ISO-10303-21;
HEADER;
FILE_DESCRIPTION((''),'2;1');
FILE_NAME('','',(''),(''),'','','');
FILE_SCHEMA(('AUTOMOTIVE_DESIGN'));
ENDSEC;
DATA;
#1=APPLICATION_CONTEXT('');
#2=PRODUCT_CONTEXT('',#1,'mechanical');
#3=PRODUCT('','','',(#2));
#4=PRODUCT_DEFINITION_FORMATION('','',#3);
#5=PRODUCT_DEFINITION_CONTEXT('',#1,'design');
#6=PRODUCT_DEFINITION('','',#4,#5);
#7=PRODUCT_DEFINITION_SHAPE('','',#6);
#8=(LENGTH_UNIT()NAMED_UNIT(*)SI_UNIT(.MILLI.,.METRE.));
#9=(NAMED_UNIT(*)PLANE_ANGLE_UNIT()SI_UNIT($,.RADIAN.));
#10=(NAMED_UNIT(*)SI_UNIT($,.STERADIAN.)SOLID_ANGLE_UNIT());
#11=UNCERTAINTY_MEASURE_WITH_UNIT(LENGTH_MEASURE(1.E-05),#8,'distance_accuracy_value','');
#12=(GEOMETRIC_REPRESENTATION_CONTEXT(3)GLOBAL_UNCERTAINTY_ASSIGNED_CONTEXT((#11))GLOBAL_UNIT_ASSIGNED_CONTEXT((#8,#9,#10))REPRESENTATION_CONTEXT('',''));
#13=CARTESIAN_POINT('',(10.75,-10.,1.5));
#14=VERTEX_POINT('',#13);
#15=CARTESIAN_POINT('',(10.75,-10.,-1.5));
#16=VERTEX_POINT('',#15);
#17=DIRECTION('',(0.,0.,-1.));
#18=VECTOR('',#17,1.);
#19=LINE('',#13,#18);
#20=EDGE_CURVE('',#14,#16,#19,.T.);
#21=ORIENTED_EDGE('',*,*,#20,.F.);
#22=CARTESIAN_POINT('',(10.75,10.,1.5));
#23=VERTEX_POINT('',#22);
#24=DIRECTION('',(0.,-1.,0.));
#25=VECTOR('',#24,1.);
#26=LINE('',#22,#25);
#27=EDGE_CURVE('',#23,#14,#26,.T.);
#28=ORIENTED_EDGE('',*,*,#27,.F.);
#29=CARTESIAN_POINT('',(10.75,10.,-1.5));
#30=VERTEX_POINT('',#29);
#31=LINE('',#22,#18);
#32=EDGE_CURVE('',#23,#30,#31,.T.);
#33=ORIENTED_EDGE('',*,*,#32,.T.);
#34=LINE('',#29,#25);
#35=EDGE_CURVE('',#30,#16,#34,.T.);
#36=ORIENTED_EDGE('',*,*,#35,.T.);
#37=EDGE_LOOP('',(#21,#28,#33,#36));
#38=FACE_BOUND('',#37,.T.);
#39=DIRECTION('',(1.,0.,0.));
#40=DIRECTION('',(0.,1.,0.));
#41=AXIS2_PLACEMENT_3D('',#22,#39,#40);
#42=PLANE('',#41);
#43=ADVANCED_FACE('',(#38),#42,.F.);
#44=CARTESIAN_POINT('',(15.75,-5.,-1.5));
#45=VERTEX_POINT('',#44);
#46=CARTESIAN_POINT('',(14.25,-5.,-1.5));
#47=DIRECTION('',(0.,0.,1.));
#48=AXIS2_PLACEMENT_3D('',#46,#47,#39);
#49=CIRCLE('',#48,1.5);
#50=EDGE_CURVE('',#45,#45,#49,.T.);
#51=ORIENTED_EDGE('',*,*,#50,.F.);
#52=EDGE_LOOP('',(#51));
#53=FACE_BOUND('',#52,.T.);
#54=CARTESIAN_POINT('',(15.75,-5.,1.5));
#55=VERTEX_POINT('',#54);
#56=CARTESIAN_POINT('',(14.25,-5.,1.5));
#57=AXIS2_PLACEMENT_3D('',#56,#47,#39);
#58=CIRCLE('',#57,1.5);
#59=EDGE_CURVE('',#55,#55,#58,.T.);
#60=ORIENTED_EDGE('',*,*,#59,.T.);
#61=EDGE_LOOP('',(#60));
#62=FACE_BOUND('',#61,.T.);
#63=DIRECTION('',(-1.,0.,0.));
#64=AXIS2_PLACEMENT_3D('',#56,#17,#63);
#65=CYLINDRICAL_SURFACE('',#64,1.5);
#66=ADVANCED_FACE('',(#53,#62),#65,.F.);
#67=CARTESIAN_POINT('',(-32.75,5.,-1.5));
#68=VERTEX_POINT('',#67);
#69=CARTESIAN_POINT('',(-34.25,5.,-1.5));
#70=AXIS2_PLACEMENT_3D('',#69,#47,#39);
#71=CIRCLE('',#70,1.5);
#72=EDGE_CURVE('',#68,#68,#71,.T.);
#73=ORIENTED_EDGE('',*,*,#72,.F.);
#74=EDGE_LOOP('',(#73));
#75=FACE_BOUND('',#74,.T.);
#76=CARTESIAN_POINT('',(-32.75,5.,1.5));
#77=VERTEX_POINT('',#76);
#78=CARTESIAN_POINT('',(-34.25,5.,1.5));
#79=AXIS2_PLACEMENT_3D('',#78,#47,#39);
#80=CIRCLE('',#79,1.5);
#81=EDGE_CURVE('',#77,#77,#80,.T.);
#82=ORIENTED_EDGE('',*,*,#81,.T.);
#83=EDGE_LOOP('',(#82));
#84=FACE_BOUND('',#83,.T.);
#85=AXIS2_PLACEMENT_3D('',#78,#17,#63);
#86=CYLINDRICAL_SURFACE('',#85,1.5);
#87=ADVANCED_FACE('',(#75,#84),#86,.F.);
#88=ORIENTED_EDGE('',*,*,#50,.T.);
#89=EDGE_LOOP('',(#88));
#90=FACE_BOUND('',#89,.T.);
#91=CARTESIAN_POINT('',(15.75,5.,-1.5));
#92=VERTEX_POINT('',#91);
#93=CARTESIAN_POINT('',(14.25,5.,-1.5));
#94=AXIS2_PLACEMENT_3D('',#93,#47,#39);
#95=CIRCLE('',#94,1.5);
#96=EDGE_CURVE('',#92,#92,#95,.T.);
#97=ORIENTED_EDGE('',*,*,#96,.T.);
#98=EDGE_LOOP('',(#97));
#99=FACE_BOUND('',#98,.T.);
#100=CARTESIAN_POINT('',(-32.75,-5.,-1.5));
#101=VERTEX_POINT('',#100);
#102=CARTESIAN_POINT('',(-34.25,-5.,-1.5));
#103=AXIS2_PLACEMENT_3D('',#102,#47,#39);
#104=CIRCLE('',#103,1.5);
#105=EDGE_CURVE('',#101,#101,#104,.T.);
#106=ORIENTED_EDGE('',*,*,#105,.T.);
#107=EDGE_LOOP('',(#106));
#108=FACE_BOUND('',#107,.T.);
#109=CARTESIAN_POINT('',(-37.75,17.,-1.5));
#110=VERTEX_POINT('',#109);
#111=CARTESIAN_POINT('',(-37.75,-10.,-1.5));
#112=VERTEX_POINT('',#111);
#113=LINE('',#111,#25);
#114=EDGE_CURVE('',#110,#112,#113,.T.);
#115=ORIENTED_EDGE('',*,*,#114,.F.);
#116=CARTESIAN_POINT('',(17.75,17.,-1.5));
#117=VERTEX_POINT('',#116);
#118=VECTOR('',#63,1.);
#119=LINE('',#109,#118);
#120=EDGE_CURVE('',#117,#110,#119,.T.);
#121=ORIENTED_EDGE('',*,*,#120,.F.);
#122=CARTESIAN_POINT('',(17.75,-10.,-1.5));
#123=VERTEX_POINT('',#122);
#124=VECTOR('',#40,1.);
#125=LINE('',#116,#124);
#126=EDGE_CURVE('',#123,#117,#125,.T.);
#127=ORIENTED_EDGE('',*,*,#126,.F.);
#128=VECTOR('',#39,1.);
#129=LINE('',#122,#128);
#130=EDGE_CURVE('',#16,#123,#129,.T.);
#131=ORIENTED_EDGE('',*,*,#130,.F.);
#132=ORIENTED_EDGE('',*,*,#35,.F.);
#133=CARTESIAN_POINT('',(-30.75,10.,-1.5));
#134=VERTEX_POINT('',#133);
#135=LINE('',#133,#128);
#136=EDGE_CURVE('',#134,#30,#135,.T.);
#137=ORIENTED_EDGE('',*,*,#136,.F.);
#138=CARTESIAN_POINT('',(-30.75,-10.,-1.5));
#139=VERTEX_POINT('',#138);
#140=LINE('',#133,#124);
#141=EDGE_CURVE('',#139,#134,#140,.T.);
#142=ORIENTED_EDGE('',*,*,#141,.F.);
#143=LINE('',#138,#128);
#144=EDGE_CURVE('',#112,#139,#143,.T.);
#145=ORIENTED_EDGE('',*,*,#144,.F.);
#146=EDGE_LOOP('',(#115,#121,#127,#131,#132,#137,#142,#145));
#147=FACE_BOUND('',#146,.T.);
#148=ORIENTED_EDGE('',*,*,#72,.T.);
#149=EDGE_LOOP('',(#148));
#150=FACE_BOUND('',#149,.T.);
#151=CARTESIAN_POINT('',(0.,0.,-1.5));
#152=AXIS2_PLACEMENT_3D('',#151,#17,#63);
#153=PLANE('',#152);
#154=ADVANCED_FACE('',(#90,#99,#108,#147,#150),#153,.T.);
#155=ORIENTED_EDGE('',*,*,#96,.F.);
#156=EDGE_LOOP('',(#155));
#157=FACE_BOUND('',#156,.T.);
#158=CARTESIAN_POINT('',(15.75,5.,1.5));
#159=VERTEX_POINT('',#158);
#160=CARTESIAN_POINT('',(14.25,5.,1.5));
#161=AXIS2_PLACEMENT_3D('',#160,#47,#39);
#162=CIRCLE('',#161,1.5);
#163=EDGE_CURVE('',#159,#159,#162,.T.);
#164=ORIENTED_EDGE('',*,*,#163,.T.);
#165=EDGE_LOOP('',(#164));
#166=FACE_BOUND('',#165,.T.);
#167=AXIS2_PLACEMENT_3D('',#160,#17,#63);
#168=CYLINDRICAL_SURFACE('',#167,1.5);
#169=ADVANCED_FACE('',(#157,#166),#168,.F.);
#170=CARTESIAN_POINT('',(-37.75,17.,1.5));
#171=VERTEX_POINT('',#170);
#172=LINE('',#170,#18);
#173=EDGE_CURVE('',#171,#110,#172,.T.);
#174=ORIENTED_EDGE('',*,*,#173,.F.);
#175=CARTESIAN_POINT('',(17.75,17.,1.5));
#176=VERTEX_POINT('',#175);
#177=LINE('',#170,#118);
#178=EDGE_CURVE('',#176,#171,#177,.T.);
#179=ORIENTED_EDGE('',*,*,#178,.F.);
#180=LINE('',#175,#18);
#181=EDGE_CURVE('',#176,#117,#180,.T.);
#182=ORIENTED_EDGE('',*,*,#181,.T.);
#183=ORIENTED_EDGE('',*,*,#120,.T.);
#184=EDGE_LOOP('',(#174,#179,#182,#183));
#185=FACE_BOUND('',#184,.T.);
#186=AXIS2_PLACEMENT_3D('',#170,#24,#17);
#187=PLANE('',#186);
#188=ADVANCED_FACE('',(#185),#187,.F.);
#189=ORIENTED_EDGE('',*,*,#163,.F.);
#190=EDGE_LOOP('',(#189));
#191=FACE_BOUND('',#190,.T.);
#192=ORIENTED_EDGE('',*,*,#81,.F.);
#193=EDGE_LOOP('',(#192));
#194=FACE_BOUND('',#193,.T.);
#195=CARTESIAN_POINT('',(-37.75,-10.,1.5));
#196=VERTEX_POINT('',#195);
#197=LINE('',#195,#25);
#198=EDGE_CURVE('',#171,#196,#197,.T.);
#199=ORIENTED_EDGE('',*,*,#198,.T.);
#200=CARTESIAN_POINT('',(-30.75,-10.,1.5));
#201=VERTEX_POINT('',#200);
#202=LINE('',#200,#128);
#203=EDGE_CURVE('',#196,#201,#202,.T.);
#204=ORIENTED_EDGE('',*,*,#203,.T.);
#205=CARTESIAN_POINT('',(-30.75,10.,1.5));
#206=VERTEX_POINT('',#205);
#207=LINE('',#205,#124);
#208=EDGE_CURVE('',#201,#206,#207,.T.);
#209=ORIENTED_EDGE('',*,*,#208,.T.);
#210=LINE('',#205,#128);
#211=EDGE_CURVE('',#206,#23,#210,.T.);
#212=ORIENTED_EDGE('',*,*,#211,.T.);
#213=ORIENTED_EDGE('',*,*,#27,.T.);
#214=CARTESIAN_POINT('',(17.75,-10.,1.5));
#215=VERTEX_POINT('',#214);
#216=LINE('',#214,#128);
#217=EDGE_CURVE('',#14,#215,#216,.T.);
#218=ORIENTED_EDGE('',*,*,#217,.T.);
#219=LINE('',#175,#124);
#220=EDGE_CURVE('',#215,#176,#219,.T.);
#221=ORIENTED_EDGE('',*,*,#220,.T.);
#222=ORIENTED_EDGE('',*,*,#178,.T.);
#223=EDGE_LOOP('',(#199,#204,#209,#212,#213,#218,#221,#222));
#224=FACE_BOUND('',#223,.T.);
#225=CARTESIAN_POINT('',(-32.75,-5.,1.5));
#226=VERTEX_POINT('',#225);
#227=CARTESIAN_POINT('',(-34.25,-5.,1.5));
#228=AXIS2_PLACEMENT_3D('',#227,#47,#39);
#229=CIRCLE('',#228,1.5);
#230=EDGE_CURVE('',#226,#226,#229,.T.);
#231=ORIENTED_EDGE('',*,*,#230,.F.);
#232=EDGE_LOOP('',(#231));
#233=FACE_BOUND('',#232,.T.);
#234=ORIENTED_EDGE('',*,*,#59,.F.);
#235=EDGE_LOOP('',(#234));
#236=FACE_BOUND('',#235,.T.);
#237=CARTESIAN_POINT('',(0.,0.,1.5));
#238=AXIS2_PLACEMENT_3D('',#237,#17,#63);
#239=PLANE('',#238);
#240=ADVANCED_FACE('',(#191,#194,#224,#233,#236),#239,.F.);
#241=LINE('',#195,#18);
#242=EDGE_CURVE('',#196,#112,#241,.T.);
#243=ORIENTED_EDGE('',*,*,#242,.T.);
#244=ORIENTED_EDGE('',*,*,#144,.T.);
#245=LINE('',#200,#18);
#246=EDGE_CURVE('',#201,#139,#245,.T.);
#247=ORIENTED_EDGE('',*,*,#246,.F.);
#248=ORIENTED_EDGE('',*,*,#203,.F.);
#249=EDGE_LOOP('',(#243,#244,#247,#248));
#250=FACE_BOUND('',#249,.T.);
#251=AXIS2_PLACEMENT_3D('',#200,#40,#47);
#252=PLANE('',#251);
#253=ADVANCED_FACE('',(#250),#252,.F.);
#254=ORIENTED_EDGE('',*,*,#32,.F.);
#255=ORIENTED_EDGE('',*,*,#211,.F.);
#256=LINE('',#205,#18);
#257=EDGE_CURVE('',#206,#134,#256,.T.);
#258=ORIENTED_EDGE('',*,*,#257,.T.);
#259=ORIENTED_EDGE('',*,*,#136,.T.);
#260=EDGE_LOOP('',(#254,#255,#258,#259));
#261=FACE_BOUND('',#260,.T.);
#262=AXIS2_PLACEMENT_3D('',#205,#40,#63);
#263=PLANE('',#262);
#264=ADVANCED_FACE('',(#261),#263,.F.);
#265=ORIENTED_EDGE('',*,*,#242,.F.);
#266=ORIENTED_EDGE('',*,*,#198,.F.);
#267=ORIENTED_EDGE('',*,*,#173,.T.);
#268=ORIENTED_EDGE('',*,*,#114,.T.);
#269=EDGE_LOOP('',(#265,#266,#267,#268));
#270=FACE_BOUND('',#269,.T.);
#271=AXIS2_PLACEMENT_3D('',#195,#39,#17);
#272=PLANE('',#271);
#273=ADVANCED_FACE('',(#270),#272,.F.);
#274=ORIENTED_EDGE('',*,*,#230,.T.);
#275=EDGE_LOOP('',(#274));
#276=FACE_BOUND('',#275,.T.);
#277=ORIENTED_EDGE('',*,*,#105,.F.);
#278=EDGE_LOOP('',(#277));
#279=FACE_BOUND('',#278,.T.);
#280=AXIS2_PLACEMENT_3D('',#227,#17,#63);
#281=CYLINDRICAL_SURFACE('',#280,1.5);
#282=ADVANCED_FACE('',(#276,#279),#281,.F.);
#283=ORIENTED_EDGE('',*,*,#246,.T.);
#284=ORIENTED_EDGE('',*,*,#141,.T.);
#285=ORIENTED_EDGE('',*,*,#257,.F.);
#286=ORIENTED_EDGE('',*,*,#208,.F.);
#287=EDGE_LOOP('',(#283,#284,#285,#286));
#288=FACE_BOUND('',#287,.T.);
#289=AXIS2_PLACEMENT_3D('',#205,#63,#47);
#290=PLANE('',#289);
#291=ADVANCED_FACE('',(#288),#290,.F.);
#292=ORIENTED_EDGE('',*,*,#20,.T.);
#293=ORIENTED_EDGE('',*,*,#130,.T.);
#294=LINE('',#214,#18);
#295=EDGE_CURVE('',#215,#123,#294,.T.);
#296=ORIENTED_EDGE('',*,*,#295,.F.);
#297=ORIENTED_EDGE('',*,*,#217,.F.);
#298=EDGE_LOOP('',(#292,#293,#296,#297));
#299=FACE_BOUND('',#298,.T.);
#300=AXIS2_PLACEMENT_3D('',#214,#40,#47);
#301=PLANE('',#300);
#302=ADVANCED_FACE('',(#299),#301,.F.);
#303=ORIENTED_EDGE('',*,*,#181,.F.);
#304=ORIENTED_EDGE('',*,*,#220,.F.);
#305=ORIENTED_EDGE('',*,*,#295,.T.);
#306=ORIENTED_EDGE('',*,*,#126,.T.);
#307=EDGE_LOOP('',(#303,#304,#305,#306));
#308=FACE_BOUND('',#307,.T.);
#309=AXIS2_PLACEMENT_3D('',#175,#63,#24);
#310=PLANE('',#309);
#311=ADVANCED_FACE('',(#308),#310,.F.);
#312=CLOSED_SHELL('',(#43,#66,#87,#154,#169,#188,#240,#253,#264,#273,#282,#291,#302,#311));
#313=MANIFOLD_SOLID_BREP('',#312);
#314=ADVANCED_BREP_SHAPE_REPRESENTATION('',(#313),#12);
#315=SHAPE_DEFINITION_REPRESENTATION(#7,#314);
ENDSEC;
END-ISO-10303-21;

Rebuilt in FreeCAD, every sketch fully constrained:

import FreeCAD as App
import Part
import Sketcher


def add_polygon(sketch, points):
    """Adds a closed chain of lines whose ends are joined by coincident constraints."""
    first, n = sketch.GeometryCount, len(points)
    for a, b in zip(points, points[1:] + points[:1]):
        sketch.addGeometry(Part.LineSegment(App.Vector(*a, 0), App.Vector(*b, 0)), False)
    for i in range(n):
        sketch.addConstraint(Sketcher.Constraint("Coincident", first + i, 2, first + (i + 1) % n, 1))

doc = App.newDocument("Part")
params = doc.addObject("Spreadsheet::Sheet", "Params")
for row, (alias, value) in enumerate([
    ("sketch1_diameter", "3 mm"),
    ("sketch1_width", "7 mm"),
    ("sketch1_height", "20 mm"),
    ("sketch1_height2", "27 mm"),
    ("sketch1_width2", "41.5 mm"),
    ("pad1_length", "3 mm"),
], start=1):
    params.set(f"A{row}", alias)
    params.set(f"B{row}", "=" + value)
    params.setAlias(f"B{row}", alias)

body = doc.addObject("PartDesign::Body", "Body")

# Sketch on XY plane
sketch1 = body.newObject("Sketcher::SketchObject", "Sketch")
sketch1.AttachmentSupport = (doc.getObject("XY_Plane"), [""])
sketch1.MapMode = "FlatFace"
add_polygon(sketch1, [(-30.75, 10), (10.75, 10), (10.75, -10), (17.75, -10), (17.75, 17), (-37.75, 17), (-37.75, -10), (-30.75, -10)])  # lines 0-7
sketch1.addGeometry(Part.Circle(App.Vector(-34.25, -5, 0), App.Vector(0, 0, 1), 1.5), False)  # 8
sketch1.addGeometry(Part.Circle(App.Vector(14.25, -5, 0), App.Vector(0, 0, 1), 1.5), False)  # 9
sketch1.addGeometry(Part.Circle(App.Vector(-34.25, 5, 0), App.Vector(0, 0, 1), 1.5), False)  # 10
sketch1.addGeometry(Part.Circle(App.Vector(14.25, 5, 0), App.Vector(0, 0, 1), 1.5), False)  # 11
sketch1.addConstraint(Sketcher.Constraint("Horizontal", 0))
sketch1.addConstraint(Sketcher.Constraint("Vertical", 1))
sketch1.addConstraint(Sketcher.Constraint("Horizontal", 2))
sketch1.addConstraint(Sketcher.Constraint("Vertical", 3))
sketch1.addConstraint(Sketcher.Constraint("Horizontal", 4))
sketch1.addConstraint(Sketcher.Constraint("Vertical", 5))
sketch1.addConstraint(Sketcher.Constraint("Horizontal", 6))
sketch1.addConstraint(Sketcher.Constraint("Vertical", 7))
sketch1.addConstraint(Sketcher.Constraint("Equal", 8, 9))
sketch1.addConstraint(Sketcher.Constraint("Equal", 9, 10))
sketch1.addConstraint(Sketcher.Constraint("Equal", 10, 11))
sketch1.addConstraint(Sketcher.Constraint("Symmetric", 8, 3, 10, 3, -1))
sketch1.addConstraint(Sketcher.Constraint("Symmetric", 9, 3, 11, 3, -1))
sketch1.addConstraint(Sketcher.Constraint("Horizontal", 8, 3, 9, 3))
sketch1.addConstraint(Sketcher.Constraint("Horizontal", 2, 2, 5, 2))
sketch1.addConstraint(Sketcher.Constraint("Equal", 2, 6))
sketch1.addConstraint(Sketcher.Constraint("Diameter", 8, 3.0))
sketch1.addConstraint(Sketcher.Constraint("DistanceX", 2, 1, 2, 2, 7.0))
sketch1.addConstraint(Sketcher.Constraint("DistanceY", 1, 2, 1, 1, 20.0))
sketch1.addConstraint(Sketcher.Constraint("DistanceY", 3, 1, 3, 2, 27.0))
sketch1.addConstraint(Sketcher.Constraint("DistanceX", 0, 1, 0, 2, 41.5))
sketch1.addConstraint(Sketcher.Constraint("DistanceY", 8, 3, -1, 1, 5.0))
sketch1.addConstraint(Sketcher.Constraint("DistanceY", -1, 1, 0, 2, 10.0))
sketch1.addConstraint(Sketcher.Constraint("DistanceX", 10, 3, 0, 2, 45.0))
sketch1.addConstraint(Sketcher.Constraint("DistanceX", 4, 2, 11, 3, 52.0))
sketch1.addConstraint(Sketcher.Constraint("DistanceX", 8, 3, -1, 1, 34.25))
sketch1.setExpression("Constraints[24]", "Params.sketch1_diameter")
sketch1.setExpression("Constraints[25]", "Params.sketch1_width")
sketch1.setExpression("Constraints[26]", "Params.sketch1_height")
sketch1.setExpression("Constraints[27]", "Params.sketch1_height2")
sketch1.setExpression("Constraints[28]", "Params.sketch1_width2")
pad1 = body.newObject("PartDesign::Pad", "Pad")
pad1.Profile = sketch1
pad1.setExpression("Length", "Params.pad1_length")
pad1.Midplane = True

doc.recompute()
